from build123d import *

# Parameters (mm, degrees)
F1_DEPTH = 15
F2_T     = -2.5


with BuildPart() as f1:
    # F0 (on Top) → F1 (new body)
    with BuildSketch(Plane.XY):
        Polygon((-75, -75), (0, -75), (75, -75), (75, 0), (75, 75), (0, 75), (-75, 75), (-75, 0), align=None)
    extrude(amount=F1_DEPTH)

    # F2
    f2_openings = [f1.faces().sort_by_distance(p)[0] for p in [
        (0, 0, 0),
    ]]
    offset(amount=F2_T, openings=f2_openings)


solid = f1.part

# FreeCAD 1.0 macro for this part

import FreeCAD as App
import Part
import Sketcher
from FreeCAD import Vector


def faces_at(feature, points):
    """Names of the faces that lie closest to the given points."""
    faces = feature.Shape.Faces
    near = lambda p: min(range(len(faces)), key=lambda i: faces[i].distToShape(Part.Vertex(*p))[0])
    return sorted({f"Face{near(p) + 1}" for p in points})


def add_polygon(sketch, points):
    """Adds a closed chain of lines whose ends are joined by coincident constraints."""
    first, n = sketch.GeometryCount, len(points)
    for a, b in zip(points, points[1:] + points[:1]):
        sketch.addGeometry(Part.LineSegment(App.Vector(*a, 0), App.Vector(*b, 0)), False)
    for i in range(n):
        sketch.addConstraint(Sketcher.Constraint("Coincident", first + i, 2, first + (i + 1) % n, 1))

doc = App.newDocument("Part")
body = doc.addObject("PartDesign::Body", "Body")

sketch1 = body.newObject("Sketcher::SketchObject", "Sketch")
sketch1.AttachmentSupport = (doc.getObject("XY_Plane"), [""])
sketch1.MapMode = "FlatFace"
add_polygon(sketch1, [(-75, -75), (75, -75), (75, 75), (-75, 75)])
sketch1.addConstraint(Sketcher.Constraint("Horizontal", 0))
sketch1.addConstraint(Sketcher.Constraint("Vertical", 1))
sketch1.addConstraint(Sketcher.Constraint("Horizontal", 2))
sketch1.addConstraint(Sketcher.Constraint("Vertical", 3))
sketch1.addConstraint(Sketcher.Constraint("Symmetric", 0, 2, 2, 2, -1, 1))
sketch1.addConstraint(Sketcher.Constraint("Equal", 2, 1))
sketch1.addConstraint(Sketcher.Constraint("DistanceX", 0, 1, 0, 2, 150.0))
pad1 = body.newObject("PartDesign::Pad", "Pad")
pad1.Profile = sketch1
pad1.Length = 15
doc.recompute()

thickness = body.newObject("PartDesign::Thickness", "Thickness")
thickness.Base = (pad1, faces_at(pad1, [(0, 0, 0)]))
thickness.Value = 2.5
thickness.Reversed = True
thickness.Join = "Arc"

doc.recompute()
